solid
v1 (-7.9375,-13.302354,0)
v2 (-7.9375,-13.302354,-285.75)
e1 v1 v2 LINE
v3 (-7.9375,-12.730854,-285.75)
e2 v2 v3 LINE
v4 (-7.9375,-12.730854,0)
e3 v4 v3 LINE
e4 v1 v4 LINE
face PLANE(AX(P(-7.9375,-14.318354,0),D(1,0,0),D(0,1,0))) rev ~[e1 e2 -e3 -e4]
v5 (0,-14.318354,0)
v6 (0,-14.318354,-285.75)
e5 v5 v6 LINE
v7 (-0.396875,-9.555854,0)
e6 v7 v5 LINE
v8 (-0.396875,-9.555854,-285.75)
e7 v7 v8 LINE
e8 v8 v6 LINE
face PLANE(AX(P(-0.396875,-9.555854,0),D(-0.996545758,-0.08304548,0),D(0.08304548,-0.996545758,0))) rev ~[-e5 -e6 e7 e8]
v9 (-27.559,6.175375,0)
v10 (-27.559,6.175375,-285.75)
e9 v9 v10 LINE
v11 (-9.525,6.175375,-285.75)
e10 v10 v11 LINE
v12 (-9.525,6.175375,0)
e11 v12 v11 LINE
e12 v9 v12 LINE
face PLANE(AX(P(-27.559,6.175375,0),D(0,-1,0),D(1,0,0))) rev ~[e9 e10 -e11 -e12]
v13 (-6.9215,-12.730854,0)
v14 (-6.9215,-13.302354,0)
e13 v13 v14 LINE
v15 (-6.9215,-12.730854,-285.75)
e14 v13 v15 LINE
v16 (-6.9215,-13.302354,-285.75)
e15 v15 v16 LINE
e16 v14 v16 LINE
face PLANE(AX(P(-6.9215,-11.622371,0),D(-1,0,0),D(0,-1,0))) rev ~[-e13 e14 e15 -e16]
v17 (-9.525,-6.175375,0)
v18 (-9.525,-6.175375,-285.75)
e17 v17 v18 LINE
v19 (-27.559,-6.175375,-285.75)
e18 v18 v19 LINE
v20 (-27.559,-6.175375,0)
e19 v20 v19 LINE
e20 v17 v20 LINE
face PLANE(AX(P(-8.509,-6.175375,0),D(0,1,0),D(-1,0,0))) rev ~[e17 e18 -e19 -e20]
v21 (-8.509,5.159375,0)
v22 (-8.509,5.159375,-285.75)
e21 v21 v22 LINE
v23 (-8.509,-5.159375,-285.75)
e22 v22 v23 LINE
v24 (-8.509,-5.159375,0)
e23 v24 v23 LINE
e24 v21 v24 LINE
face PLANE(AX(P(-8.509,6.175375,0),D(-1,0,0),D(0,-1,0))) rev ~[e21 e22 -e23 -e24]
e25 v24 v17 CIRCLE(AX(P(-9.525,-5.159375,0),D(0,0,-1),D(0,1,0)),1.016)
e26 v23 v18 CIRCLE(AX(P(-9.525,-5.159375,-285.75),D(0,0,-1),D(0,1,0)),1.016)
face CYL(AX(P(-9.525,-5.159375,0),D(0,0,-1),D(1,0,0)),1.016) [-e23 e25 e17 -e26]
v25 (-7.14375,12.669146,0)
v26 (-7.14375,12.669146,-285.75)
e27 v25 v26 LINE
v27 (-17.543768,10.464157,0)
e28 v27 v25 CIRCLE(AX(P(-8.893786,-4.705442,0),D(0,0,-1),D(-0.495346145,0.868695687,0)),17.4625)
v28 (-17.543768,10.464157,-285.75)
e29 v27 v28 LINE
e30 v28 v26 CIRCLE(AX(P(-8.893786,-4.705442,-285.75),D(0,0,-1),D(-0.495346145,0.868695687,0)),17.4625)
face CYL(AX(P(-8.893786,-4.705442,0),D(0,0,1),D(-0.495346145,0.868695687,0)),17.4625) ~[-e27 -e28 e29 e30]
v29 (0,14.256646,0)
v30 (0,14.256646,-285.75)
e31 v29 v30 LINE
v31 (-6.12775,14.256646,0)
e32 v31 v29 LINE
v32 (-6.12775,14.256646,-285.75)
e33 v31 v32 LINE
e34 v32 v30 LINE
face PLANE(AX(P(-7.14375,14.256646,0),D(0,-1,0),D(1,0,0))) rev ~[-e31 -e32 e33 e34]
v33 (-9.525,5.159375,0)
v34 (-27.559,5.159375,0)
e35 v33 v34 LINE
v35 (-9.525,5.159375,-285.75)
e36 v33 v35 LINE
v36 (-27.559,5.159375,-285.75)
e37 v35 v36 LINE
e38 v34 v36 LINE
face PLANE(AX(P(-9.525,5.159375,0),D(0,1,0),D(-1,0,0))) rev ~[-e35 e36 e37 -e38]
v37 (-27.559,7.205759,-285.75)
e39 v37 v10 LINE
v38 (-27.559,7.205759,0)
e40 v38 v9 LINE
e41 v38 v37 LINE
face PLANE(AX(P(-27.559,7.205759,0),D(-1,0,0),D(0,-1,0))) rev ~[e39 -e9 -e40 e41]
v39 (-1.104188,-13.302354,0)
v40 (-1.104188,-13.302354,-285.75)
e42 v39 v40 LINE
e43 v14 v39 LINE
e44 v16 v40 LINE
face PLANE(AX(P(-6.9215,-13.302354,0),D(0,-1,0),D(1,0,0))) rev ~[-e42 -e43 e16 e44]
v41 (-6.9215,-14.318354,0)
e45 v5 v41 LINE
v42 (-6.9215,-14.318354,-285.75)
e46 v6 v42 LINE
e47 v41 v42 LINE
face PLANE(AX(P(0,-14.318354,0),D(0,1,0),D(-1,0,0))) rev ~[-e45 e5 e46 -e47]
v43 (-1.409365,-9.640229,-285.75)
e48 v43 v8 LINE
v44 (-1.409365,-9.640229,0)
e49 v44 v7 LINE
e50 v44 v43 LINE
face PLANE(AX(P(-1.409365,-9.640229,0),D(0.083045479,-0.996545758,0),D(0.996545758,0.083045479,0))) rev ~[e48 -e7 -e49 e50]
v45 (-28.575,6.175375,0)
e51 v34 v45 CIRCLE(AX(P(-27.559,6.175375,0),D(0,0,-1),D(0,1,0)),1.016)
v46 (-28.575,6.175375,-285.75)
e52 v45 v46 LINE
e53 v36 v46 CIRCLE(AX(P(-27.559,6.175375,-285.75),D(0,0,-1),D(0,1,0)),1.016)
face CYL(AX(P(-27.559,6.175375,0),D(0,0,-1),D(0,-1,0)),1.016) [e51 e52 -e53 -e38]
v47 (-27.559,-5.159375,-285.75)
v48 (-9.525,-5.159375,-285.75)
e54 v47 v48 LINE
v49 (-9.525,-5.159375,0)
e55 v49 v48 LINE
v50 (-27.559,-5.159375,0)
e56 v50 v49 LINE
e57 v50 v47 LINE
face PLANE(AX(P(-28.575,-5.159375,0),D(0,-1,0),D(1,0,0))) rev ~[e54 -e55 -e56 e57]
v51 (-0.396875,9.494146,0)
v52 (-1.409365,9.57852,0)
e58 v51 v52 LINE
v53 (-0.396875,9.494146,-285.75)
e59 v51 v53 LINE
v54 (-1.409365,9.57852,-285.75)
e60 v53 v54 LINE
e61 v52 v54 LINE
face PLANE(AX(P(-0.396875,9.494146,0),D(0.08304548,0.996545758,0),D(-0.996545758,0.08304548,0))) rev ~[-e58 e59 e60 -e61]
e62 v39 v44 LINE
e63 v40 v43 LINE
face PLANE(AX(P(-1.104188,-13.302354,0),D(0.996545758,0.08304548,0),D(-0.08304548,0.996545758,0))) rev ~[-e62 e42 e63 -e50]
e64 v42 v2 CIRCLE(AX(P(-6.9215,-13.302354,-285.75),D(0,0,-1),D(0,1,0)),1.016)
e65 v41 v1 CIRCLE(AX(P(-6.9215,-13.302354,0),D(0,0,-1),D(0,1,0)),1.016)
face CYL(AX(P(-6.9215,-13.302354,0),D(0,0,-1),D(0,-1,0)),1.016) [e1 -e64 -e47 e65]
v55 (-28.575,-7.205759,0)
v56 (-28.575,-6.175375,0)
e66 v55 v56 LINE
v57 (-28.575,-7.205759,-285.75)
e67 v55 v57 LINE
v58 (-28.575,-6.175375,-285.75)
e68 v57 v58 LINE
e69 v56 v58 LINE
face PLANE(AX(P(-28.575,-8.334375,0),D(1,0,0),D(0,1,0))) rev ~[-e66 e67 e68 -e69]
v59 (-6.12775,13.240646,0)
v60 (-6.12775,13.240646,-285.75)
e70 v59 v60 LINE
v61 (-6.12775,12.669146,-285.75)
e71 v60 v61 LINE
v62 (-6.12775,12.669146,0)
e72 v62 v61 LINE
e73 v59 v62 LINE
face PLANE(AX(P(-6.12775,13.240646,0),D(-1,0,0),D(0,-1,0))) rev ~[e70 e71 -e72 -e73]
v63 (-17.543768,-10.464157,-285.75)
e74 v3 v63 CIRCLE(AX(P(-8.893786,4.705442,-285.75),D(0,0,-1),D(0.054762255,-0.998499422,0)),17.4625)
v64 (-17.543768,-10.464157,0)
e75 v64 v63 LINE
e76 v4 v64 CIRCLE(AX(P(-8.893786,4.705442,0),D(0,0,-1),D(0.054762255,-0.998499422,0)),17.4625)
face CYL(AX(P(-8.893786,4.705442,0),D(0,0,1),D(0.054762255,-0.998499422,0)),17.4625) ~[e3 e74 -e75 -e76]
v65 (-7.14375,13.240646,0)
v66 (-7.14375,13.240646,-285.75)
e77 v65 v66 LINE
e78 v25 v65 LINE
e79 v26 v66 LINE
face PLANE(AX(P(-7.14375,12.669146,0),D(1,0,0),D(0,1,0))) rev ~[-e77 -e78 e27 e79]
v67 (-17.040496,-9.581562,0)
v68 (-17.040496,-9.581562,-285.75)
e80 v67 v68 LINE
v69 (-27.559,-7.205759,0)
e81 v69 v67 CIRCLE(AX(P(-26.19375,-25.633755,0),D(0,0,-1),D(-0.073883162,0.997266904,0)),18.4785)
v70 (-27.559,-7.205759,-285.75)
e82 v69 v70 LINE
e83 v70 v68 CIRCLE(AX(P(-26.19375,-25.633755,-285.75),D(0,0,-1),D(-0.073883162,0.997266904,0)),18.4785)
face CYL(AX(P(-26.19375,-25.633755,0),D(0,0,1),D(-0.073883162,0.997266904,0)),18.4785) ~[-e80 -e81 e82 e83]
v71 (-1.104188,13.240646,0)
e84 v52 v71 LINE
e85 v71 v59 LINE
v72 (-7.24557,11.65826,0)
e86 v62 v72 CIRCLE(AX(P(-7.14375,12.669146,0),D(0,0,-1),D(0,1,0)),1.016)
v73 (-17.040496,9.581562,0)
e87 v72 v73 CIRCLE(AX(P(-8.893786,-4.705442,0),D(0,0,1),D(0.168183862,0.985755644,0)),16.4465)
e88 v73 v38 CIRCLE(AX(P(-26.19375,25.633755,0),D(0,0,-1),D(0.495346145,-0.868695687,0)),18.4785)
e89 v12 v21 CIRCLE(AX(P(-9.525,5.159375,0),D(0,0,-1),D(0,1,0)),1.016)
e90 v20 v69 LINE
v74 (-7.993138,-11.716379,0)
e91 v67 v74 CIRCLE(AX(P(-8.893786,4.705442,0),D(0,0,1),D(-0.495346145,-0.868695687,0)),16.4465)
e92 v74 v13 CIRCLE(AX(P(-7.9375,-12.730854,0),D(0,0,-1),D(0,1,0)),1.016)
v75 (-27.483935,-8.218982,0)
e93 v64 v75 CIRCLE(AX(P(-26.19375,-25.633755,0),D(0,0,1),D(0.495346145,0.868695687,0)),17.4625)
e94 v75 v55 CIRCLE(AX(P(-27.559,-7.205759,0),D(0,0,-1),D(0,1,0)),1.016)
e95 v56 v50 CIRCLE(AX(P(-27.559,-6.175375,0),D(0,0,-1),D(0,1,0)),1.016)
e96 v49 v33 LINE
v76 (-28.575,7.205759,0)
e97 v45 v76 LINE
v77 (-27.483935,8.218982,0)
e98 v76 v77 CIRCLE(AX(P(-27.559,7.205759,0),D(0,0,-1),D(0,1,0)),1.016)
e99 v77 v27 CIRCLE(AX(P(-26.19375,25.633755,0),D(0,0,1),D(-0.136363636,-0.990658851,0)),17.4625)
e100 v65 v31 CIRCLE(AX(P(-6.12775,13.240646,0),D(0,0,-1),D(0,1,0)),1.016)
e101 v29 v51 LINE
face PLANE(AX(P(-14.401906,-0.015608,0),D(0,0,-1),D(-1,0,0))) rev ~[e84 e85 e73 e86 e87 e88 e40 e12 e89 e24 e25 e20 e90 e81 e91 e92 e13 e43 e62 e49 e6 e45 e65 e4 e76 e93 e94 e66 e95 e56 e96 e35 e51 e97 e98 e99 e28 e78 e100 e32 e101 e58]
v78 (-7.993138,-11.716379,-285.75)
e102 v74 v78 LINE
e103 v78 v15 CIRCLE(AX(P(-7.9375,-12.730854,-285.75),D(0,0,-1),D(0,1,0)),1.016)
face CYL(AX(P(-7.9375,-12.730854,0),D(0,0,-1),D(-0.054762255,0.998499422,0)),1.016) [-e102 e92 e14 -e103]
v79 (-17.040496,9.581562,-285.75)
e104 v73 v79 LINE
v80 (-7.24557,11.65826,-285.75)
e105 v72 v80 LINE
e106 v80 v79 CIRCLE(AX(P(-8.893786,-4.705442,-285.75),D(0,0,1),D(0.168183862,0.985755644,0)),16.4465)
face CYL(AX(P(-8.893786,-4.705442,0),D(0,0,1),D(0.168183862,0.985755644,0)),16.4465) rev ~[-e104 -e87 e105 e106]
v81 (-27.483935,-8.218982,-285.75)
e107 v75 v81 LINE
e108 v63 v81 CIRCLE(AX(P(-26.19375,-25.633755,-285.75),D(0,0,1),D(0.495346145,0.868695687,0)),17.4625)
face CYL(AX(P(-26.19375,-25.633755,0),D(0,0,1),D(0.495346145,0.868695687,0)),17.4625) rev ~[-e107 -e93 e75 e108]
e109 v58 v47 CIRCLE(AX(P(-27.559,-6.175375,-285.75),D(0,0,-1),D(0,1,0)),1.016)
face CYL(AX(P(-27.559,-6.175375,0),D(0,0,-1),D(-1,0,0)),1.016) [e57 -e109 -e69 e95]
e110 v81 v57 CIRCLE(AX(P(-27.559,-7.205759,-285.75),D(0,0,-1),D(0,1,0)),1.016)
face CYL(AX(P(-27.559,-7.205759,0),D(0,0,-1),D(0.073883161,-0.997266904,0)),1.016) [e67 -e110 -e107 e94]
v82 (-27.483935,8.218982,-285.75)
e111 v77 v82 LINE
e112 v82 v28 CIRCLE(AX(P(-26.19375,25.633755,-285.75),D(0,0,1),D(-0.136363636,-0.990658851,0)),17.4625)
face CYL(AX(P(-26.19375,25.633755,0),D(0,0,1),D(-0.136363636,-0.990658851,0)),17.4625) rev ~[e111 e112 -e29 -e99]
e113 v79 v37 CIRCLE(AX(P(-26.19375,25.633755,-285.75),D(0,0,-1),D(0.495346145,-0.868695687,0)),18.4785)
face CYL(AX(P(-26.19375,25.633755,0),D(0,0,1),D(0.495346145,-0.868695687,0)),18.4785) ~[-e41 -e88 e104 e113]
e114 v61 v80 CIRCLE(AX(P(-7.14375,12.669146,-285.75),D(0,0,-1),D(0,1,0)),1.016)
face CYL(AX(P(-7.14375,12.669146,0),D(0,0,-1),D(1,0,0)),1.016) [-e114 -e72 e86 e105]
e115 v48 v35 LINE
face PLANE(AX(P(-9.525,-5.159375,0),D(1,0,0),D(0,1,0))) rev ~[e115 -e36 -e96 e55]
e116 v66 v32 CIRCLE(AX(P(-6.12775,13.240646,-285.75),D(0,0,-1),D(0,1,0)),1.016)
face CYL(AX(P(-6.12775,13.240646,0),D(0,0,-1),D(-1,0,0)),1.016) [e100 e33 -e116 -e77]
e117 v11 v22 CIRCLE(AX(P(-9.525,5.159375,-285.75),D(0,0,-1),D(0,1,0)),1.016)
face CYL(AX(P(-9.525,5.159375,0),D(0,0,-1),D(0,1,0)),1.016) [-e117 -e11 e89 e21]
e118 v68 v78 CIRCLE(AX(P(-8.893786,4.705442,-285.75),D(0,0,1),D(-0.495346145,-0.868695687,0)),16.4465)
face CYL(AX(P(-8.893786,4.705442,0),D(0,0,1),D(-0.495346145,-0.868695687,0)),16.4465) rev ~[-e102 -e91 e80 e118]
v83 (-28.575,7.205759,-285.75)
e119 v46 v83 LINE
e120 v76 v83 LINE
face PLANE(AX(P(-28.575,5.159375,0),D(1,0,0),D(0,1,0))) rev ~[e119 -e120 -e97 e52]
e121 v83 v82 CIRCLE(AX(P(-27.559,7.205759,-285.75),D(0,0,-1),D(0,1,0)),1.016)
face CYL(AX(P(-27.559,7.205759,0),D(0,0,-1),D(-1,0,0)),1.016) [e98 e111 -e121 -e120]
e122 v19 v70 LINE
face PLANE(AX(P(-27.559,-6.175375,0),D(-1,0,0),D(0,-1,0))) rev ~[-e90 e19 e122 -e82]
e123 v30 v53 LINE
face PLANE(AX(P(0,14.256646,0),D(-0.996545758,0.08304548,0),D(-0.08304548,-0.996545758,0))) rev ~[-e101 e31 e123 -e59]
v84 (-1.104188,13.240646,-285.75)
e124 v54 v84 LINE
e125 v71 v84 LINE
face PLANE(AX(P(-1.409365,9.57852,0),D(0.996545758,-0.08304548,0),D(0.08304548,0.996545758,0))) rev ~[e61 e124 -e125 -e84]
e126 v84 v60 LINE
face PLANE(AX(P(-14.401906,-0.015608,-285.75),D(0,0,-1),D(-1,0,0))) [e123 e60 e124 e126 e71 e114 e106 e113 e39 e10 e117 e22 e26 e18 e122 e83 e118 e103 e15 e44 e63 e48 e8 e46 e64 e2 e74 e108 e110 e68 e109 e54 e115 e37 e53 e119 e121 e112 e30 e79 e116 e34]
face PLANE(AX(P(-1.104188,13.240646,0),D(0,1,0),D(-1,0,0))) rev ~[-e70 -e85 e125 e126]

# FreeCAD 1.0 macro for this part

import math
import FreeCAD as App
import Part
import Sketcher
Q = App.Units.Quantity


def edges_at(feature, points):
    """Names of the edges that pass closest to the given points."""
    edges = feature.Shape.Edges
    near = lambda p: min(range(len(edges)), key=lambda i: edges[i].distToShape(Part.Vertex(*p))[0])
    return sorted({f"Edge{near(p) + 1}" for p in points})

doc = App.newDocument("Part")
params = doc.addObject("Spreadsheet::Sheet", "Params")
for row, (alias, value) in enumerate([
    ("sketch1_radius", "0.6875 in"),
    ("sketch1_width", "0.75 in"),
    ("sketch1_length", "0.04 in"),
    ("sketch1_width2", "0.28125 in"),
    ("sketch1_width3", "0.3125 in"),
    ("pad1_length", "11.25 in"),
    ("fillet_radius", "0.04 in"),
], start=1):
    params.set(f"A{row}", alias)
    params.set(f"B{row}", "=" + value)
    params.setAlias(f"B{row}", alias)

body = doc.addObject("PartDesign::Body", "Body")

# Sketch on XY plane
sketch1 = body.newObject("Sketcher::SketchObject", "Sketch")
sketch1.AttachmentSupport = (doc.getObject("XY_Plane"), [""])
sketch1.MapMode = "FlatFace"
sketch1.addGeometry(Part.LineSegment(App.Vector(0, -14.3, 0), App.Vector(-0.4, -9.6, 0)), False)
sketch1.addGeometry(Part.LineSegment(App.Vector(-0.4, -9.6, 0), App.Vector(-1.4, -9.6, 0)), False)
sketch1.addGeometry(Part.LineSegment(App.Vector(-1.4, -9.6, 0), App.Vector(-1.1, -13.3, 0)), False)
sketch1.addGeometry(Part.LineSegment(App.Vector(-1.1, -13.3, 0), App.Vector(-6.9, -13.3, 0)), False)
sketch1.addGeometry(Part.LineSegment(App.Vector(-6.9, -13.3, 0), App.Vector(-6.9, -11.6, 0)), False)
sketch1.addGeometry(Part.ArcOfCircle(Part.Circle(App.Vector(-8.9, 4.7, 0), App.Vector(0, 0, 1), 16.4), math.radians(-120), math.radians(-83)), False)
sketch1.addGeometry(Part.ArcOfCircle(Part.Circle(App.Vector(-26.2, -25.6, 0), App.Vector(0, 0, 1), 18.5), math.radians(60), math.radians(94)), False)
sketch1.addGeometry(Part.LineSegment(App.Vector(-27.6, -7.2, 0), App.Vector(-27.6, -6.2, 0)), False)
sketch1.addGeometry(Part.LineSegment(App.Vector(-27.6, -6.2, 0), App.Vector(-8.5, -6.2, 0)), False)
sketch1.addGeometry(Part.LineSegment(App.Vector(-8.5, -6.2, 0), App.Vector(-8.5, 6.2, 0)), False)
sketch1.addGeometry(Part.LineSegment(App.Vector(-8.5, 6.2, 0), App.Vector(-27.6, 6.2, 0)), False)
sketch1.addGeometry(Part.LineSegment(App.Vector(-27.6, 6.2, 0), App.Vector(-27.6, 7.2, 0)), False)
sketch1.addGeometry(Part.ArcOfCircle(Part.Circle(App.Vector(-26.2, 25.6, 0), App.Vector(0, 0, 1), 18.5), math.radians(-94), math.radians(-60)), False)
sketch1.addGeometry(Part.ArcOfCircle(Part.Circle(App.Vector(-8.9, -4.7, 0), App.Vector(0, 0, 1), 16.4), math.radians(80), math.radians(120)), False)
sketch1.addGeometry(Part.LineSegment(App.Vector(-6.1, 11.5, 0), App.Vector(-6.1, 13.2, 0)), False)
sketch1.addGeometry(Part.LineSegment(App.Vector(-6.1, 13.2, 0), App.Vector(-1.1, 13.2, 0)), False)
sketch1.addGeometry(Part.LineSegment(App.Vector(-1.1, 13.2, 0), App.Vector(-1.4, 9.6, 0)), False)
sketch1.addGeometry(Part.LineSegment(App.Vector(-1.4, 9.6, 0), App.Vector(-0.4, 9.5, 0)), False)
sketch1.addGeometry(Part.LineSegment(App.Vector(-0.4, 9.5, 0), App.Vector(0, 14.3, 0)), False)
sketch1.addGeometry(Part.LineSegment(App.Vector(0, 14.3, 0), App.Vector(-7.1, 14.3, 0)), False)
sketch1.addGeometry(Part.LineSegment(App.Vector(-7.1, 14.3, 0), App.Vector(-7.1, 12.7, 0)), False)
sketch1.addGeometry(Part.ArcOfCircle(Part.Circle(App.Vector(-8.9, -4.7, 0), App.Vector(0, 0, 1), 17.5), math.radians(84), math.radians(120)), False)
sketch1.addGeometry(Part.ArcOfCircle(Part.Circle(App.Vector(-26.2, 25.6, 0), App.Vector(0, 0, 1), 17.5), math.radians(-98), math.radians(-60)), False)
sketch1.addGeometry(Part.LineSegment(App.Vector(-28.6, 8.3, 0), App.Vector(-28.6, 5.2, 0)), False)
sketch1.addGeometry(Part.LineSegment(App.Vector(-28.6, 5.2, 0), App.Vector(-9.5, 5.2, 0)), False)
sketch1.addGeometry(Part.LineSegment(App.Vector(-9.5, 5.2, 0), App.Vector(-9.5, -5.2, 0)), False)
sketch1.addGeometry(Part.LineSegment(App.Vector(-9.5, -5.2, 0), App.Vector(-28.6, -5.2, 0)), False)
sketch1.addGeometry(Part.LineSegment(App.Vector(-28.6, -5.2, 0), App.Vector(-28.6, -8.3, 0)), False)
sketch1.addGeometry(Part.ArcOfCircle(Part.Circle(App.Vector(-26.2, -25.6, 0), App.Vector(0, 0, 1), 17.5), math.radians(60), math.radians(98)), False)
sketch1.addGeometry(Part.ArcOfCircle(Part.Circle(App.Vector(-8.9, 4.7, 0), App.Vector(0, 0, 1), 17.5), math.radians(-120), math.radians(-87)), False)
sketch1.addGeometry(Part.LineSegment(App.Vector(-7.9, -12.7, 0), App.Vector(-7.9, -14.3, 0)), False)
sketch1.addGeometry(Part.LineSegment(App.Vector(-7.9, -14.3, 0), App.Vector(0, -14.3, 0)), False)
sketch1.addConstraint(Sketcher.Constraint("Coincident", 0, 2, 1, 1))
sketch1.addConstraint(Sketcher.Constraint("Coincident", 1, 2, 2, 1))
sketch1.addConstraint(Sketcher.Constraint("Coincident", 2, 2, 3, 1))
sketch1.addConstraint(Sketcher.Constraint("Coincident", 3, 2, 4, 1))
sketch1.addConstraint(Sketcher.Constraint("Coincident", 4, 2, 5, 2))
sketch1.addConstraint(Sketcher.Constraint("Tangent", 5, 1, 6, 1))
sketch1.addConstraint(Sketcher.Constraint("Coincident", 6, 2, 7, 1))
sketch1.addConstraint(Sketcher.Constraint("Coincident", 7, 2, 8, 1))
sketch1.addConstraint(Sketcher.Constraint("Coincident", 8, 2, 9, 1))
sketch1.addConstraint(Sketcher.Constraint("Coincident", 9, 2, 10, 1))
sketch1.addConstraint(Sketcher.Constraint("Coincident", 10, 2, 11, 1))
sketch1.addConstraint(Sketcher.Constraint("Coincident", 11, 2, 12, 1))
sketch1.addConstraint(Sketcher.Constraint("Tangent", 12, 2, 13, 2))
sketch1.addConstraint(Sketcher.Constraint("Coincident", 13, 1, 14, 1))
sketch1.addConstraint(Sketcher.Constraint("Coincident", 14, 2, 15, 1))
sketch1.addConstraint(Sketcher.Constraint("Coincident", 15, 2, 16, 1))
sketch1.addConstraint(Sketcher.Constraint("Coincident", 16, 2, 17, 1))
sketch1.addConstraint(Sketcher.Constraint("Coincident", 17, 2, 18, 1))
sketch1.addConstraint(Sketcher.Constraint("Coincident", 18, 2, 19, 1))
sketch1.addConstraint(Sketcher.Constraint("Coincident", 19, 2, 20, 1))
sketch1.addConstraint(Sketcher.Constraint("Coincident", 20, 2, 21, 1))
sketch1.addConstraint(Sketcher.Constraint("Tangent", 21, 2, 22, 2))
sketch1.addConstraint(Sketcher.Constraint("Coincident", 22, 1, 23, 1))
sketch1.addConstraint(Sketcher.Constraint("Coincident", 23, 2, 24, 1))
sketch1.addConstraint(Sketcher.Constraint("Coincident", 24, 2, 25, 1))
sketch1.addConstraint(Sketcher.Constraint("Coincident", 25, 2, 26, 1))
sketch1.addConstraint(Sketcher.Constraint("Coincident", 26, 2, 27, 1))
sketch1.addConstraint(Sketcher.Constraint("Coincident", 27, 2, 28, 2))
sketch1.addConstraint(Sketcher.Constraint("Tangent", 28, 1, 29, 1))
sketch1.addConstraint(Sketcher.Constraint("Coincident", 29, 2, 30, 1))
sketch1.addConstraint(Sketcher.Constraint("Coincident", 30, 2, 31, 1))
sketch1.addConstraint(Sketcher.Constraint("Coincident", 31, 2, 0, 1))
sketch1.addConstraint(Sketcher.Constraint("Horizontal", 3))
sketch1.addConstraint(Sketcher.Constraint("Vertical", 4))
sketch1.addConstraint(Sketcher.Constraint("Vertical", 7))
sketch1.addConstraint(Sketcher.Constraint("Horizontal", 8))
sketch1.addConstraint(Sketcher.Constraint("Vertical", 9))
sketch1.addConstraint(Sketcher.Constraint("Horizontal", 10))
sketch1.addConstraint(Sketcher.Constraint("Vertical", 11))
sketch1.addConstraint(Sketcher.Constraint("Vertical", 14))
sketch1.addConstraint(Sketcher.Constraint("Horizontal", 15))
sketch1.addConstraint(Sketcher.Constraint("Horizontal", 19))
sketch1.addConstraint(Sketcher.Constraint("Vertical", 20))
sketch1.addConstraint(Sketcher.Constraint("Vertical", 23))
sketch1.addConstraint(Sketcher.Constraint("Horizontal", 24))
sketch1.addConstraint(Sketcher.Constraint("Vertical", 25))
sketch1.addConstraint(Sketcher.Constraint("Horizontal", 26))
sketch1.addConstraint(Sketcher.Constraint("Vertical", 27))
sketch1.addConstraint(Sketcher.Constraint("Vertical", 30))
sketch1.addConstraint(Sketcher.Constraint("Horizontal", 31))
sketch1.addConstraint(Sketcher.Constraint("Coincident", 21, 3, 13, 3))
sketch1.addConstraint(Sketcher.Constraint("Coincident", 22, 3, 12, 3))
sketch1.addConstraint(Sketcher.Constraint("Coincident", 28, 3, 6, 3))
sketch1.addConstraint(Sketcher.Constraint("Coincident", 29, 3, 5, 3))
sketch1.addConstraint(Sketcher.Constraint("Equal", 6, 12))
sketch1.addConstraint(Sketcher.Constraint("Equal", 5, 13))
sketch1.addConstraint(Sketcher.Constraint("Equal", 21, 22))
sketch1.addConstraint(Sketcher.Constraint("Equal", 22, 28))
sketch1.addConstraint(Sketcher.Constraint("Symmetric", 6, 3, 12, 3, -1))
sketch1.addConstraint(Sketcher.Constraint("Symmetric", 7, 2, 10, 2, -1))
sketch1.addConstraint(Sketcher.Constraint("Symmetric", 23, 2, 26, 2, -1))
sketch1.addConstraint(Sketcher.Constraint("PointOnObject", 18, 2, -2))
sketch1.addConstraint(Sketcher.Constraint("PointOnObject", 31, 2, -2))
sketch1.addConstraint(Sketcher.Constraint("Perpendicular", 0, 1))
sketch1.addConstraint(Sketcher.Constraint("Perpendicular", 1, 2))
sketch1.addConstraint(Sketcher.Constraint("Perpendicular", 16, 17))
sketch1.addConstraint(Sketcher.Constraint("Perpendicular", 17, 18))
sketch1.addConstraint(Sketcher.Constraint("Vertical", 5, 3, 13, 3))
sketch1.addConstraint(Sketcher.Constraint("Vertical", 2, 2, 15, 2))
sketch1.addConstraint(Sketcher.Constraint("Vertical", 1, 2, 16, 2))
sketch1.addConstraint(Sketcher.Constraint("Vertical", 0, 2, 17, 2))
sketch1.addConstraint(Sketcher.Constraint("Equal", 10, 24))
sketch1.addConstraint(Sketcher.Constraint("Equal", 20, 30))
sketch1.addConstraint(Sketcher.Constraint("Equal", 2, 16))
sketch1.addConstraint(Sketcher.Constraint("Radius", 21, Q("0.6875 in")))
sketch1.addConstraint(Sketcher.Constraint("DistanceX", 8, 1, 8, 2, Q("0.75 in")))
sketch1.addConstraint(Sketcher.Constraint("Radius", 5, Q("0.6475 in")))
sketch1.addConstraint(Sketcher.Constraint("Distance", 1, Q("0.04 in")))
sketch1.addConstraint(Sketcher.Constraint("DistanceX", 19, 2, 19, 1, Q("0.28125 in")))
sketch1.addConstraint(Sketcher.Constraint("DistanceX", 31, 1, 31, 2, Q("0.3125 in")))
sketch1.addConstraint(Sketcher.Constraint("DistanceY", 20, 2, 20, 1, Q("0.0625 in")))
sketch1.addConstraint(Sketcher.Constraint("DistanceY", 23, 2, 23, 1, Q("0.125 in")))
sketch1.addConstraint(Sketcher.Constraint("DistanceY", 25, 2, 25, 1, Q("0.40625 in")))
sketch1.addConstraint(Sketcher.Constraint("DistanceY", 15, 2, 18, 2, Q("0.04 in")))
sketch1.addConstraint(Sketcher.Constraint("DistanceX", 19, 2, 14, 2, Q("0.04 in")))
sketch1.addConstraint(Sketcher.Constraint("DistanceX", 22, 1, 11, 2, Q("0.04 in")))
sketch1.addConstraint(Sketcher.Constraint("DistanceY", 23, 2, 10, 2, Q("0.04 in")))
sketch1.addConstraint(Sketcher.Constraint("DistanceX", 29, 2, 3, 2, Q("0.04 in")))
sketch1.addConstraint(Sketcher.Constraint("DistanceX", 6, 3, -1, 1, Q("1.03125 in")))
sketch1.addConstraint(Sketcher.Constraint("DistanceX", 0, 2, -1, 1, Q("0.015625 in")))
sketch1.addConstraint(Sketcher.Constraint("DistanceX", 6, 2, -1, 1, Q("1.085 in")))
sketch1.addConstraint(Sketcher.Constraint("DistanceY", 17, 2, 18, 2, Q("0.1875 in")))
sketch1.addConstraint(Sketcher.Constraint("DistanceY", 6, 3, 0, 2, Q("16.077901 mm")))
sketch1.setExpression("Constraints[74]", "Params.sketch1_radius")
sketch1.setExpression("Constraints[75]", "Params.sketch1_width")
sketch1.setExpression("Constraints[77]", "Params.sketch1_length")
sketch1.setExpression("Constraints[78]", "Params.sketch1_width2")
sketch1.setExpression("Constraints[79]", "Params.sketch1_width3")
pad1 = body.newObject("PartDesign::Pad", "Pad")
pad1.Profile = sketch1
pad1.setExpression("Length", "Params.pad1_length")
pad1.Reversed = True
doc.recompute()

fillet = body.newObject("PartDesign::Fillet", "Fillet")
fillet.Base = (pad1, edges_at(pad1, [
    (-7.938, -14.318, -142.875),
    (-28.575, -8.334, -142.875),
    (-28.575, -5.159, -142.875),
    (-28.575, 5.159, -142.875),
    (-28.575, 8.334, -142.875),
    (-7.144, 14.257, -142.875),
    (-6.128, 11.507, -142.875),
    (-8.509, 6.175, -142.875),
    (-8.509, -6.175, -142.875),
    (-6.921, -11.622, -142.875),
]))
fillet.setExpression("Radius", "Params.fillet_radius")

doc.recompute()
